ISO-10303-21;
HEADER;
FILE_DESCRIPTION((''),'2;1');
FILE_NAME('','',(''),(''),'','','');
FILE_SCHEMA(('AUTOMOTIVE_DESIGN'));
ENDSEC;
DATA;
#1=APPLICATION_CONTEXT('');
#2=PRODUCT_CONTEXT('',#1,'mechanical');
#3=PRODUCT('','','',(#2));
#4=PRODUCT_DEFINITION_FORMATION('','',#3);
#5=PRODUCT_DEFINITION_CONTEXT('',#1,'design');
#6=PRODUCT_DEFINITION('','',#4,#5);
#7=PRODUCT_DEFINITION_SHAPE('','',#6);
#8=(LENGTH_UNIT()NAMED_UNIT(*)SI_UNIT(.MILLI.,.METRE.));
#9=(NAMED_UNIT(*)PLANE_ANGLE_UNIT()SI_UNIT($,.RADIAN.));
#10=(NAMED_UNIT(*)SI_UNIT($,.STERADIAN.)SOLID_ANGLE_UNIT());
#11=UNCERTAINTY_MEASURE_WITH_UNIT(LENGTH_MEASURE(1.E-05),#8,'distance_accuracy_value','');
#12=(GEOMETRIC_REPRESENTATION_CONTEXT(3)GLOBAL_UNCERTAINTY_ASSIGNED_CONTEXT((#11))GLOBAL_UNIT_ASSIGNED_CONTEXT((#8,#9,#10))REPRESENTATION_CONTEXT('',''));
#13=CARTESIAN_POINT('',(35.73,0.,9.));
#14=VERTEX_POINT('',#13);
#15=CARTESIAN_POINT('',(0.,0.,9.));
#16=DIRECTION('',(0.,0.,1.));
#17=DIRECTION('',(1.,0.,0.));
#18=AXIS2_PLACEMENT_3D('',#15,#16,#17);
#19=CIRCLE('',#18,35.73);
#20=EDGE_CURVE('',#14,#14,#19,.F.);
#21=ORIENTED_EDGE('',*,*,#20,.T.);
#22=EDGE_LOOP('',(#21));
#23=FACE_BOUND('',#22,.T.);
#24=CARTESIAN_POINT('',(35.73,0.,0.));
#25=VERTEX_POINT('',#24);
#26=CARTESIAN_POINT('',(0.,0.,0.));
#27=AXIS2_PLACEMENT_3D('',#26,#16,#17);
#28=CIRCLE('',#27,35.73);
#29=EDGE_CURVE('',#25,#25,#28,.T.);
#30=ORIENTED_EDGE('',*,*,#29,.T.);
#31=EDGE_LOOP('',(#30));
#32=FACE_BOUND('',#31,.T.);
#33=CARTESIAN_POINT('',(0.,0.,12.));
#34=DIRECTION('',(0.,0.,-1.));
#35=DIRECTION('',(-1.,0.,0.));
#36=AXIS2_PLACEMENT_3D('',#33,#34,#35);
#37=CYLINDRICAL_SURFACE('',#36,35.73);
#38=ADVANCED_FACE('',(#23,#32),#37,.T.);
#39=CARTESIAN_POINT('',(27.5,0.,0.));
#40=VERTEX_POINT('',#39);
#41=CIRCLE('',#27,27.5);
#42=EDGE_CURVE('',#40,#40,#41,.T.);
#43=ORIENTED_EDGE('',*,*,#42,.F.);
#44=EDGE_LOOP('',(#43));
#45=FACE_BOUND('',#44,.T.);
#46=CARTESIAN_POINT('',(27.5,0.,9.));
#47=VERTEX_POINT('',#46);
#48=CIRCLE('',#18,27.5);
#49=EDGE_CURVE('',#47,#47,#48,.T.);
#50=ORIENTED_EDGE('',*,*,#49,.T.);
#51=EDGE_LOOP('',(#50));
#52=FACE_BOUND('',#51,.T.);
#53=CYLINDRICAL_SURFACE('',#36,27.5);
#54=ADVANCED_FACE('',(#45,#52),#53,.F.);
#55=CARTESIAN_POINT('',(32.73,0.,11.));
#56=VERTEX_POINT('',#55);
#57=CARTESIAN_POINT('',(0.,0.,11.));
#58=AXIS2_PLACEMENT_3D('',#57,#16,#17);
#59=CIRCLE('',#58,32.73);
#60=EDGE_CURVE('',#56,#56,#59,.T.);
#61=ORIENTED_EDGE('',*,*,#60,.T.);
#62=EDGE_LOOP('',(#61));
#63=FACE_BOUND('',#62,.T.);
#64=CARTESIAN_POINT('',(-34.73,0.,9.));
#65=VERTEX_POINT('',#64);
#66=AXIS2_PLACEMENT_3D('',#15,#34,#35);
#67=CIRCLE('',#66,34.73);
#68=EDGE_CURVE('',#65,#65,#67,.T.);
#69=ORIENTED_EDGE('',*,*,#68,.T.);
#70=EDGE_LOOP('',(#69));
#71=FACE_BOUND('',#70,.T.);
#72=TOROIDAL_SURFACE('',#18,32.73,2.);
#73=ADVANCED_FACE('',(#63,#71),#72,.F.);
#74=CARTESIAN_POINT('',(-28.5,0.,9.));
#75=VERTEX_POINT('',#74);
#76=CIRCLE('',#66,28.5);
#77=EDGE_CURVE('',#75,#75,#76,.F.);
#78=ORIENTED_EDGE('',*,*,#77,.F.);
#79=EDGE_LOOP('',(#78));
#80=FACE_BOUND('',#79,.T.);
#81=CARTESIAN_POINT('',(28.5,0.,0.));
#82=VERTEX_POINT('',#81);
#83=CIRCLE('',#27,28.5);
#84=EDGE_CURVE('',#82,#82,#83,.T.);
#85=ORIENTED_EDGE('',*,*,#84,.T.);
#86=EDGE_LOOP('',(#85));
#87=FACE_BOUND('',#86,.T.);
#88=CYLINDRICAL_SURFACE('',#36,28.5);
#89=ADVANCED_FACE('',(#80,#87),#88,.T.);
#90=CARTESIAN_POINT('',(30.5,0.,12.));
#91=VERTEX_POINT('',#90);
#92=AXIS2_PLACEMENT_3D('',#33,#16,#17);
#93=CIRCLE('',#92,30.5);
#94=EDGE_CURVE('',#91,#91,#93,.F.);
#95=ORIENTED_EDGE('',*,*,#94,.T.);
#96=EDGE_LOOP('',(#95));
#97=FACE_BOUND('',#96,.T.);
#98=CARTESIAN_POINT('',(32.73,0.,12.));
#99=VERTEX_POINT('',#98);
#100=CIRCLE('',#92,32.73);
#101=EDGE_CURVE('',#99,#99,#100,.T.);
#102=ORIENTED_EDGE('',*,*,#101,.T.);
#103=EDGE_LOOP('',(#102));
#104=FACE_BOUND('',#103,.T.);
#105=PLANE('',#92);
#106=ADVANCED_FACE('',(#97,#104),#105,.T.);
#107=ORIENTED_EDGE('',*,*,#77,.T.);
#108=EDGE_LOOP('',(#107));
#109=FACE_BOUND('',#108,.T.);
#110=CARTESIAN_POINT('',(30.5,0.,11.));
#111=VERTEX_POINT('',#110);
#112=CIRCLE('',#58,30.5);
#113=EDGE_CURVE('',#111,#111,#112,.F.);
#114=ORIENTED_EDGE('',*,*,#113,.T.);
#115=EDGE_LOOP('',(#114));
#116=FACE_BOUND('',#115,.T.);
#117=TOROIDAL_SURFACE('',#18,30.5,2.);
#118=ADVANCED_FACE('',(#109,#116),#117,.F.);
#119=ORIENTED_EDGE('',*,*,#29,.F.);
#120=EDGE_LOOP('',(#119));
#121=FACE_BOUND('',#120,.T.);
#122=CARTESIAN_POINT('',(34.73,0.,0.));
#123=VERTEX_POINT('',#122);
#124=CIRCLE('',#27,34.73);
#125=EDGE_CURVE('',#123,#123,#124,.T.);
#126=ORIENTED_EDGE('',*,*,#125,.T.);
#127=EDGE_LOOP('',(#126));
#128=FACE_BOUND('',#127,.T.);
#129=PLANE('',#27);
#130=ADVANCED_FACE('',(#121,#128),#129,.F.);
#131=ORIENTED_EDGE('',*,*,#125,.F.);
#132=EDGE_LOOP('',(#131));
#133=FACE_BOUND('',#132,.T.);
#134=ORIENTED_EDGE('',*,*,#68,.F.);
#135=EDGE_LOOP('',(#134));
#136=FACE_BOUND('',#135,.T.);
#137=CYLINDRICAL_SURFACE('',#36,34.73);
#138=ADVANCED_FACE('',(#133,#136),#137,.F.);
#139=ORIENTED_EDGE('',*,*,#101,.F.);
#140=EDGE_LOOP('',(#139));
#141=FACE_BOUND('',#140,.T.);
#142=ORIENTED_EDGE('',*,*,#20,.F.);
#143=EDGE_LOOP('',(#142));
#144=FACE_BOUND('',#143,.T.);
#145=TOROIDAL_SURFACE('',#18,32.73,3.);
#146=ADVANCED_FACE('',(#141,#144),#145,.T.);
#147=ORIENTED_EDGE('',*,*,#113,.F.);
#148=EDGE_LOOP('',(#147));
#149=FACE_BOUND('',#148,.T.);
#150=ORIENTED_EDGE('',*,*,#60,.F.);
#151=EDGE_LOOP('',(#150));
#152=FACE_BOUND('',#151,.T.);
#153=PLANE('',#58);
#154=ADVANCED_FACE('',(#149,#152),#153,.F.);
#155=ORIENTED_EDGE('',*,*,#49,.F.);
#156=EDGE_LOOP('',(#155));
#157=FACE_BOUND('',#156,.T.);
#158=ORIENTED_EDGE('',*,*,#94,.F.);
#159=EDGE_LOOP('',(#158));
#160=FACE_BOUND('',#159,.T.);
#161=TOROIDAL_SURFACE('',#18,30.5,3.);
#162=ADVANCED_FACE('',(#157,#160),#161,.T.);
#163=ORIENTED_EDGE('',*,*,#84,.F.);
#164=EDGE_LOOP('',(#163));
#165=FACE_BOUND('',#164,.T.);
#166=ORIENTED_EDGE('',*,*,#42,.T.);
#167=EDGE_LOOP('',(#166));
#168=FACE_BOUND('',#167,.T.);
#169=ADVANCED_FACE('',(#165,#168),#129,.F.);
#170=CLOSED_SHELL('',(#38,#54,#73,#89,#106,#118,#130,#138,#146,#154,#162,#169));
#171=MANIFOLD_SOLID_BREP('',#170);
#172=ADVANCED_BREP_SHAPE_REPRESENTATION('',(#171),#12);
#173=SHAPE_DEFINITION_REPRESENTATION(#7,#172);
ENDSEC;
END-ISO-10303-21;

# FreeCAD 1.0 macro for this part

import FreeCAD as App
import Part
import Sketcher
from FreeCAD import Vector


def edges_at(feature, points):
    """Names of the edges that pass closest to the given points."""
    edges = feature.Shape.Edges
    near = lambda p: min(range(len(edges)), key=lambda i: edges[i].distToShape(Part.Vertex(*p))[0])
    return sorted({f"Edge{near(p) + 1}" for p in points})


def faces_at(feature, points):
    """Names of the faces that lie closest to the given points."""
    faces = feature.Shape.Faces
    near = lambda p: min(range(len(faces)), key=lambda i: faces[i].distToShape(Part.Vertex(*p))[0])
    return sorted({f"Face{near(p) + 1}" for p in points})

doc = App.newDocument("Part")
body = doc.addObject("PartDesign::Body", "Body")

sketch1 = doc.addObject("Sketcher::SketchObject", "Sketch")
body.addObject(sketch1)
sketch1.AttachmentSupport = (doc.XY_Plane, [""])
sketch1.MapMode = "FlatFace"
sketch1.addGeometry(Part.Circle(Vector(0, 0, 0), Vector(0, 0, 1), 36), False)
sketch1.addGeometry(Part.Circle(Vector(0, 0, 0), Vector(0, 0, 1), 28), False)
sketch1.addConstraint(Sketcher.Constraint("Coincident", 0, 3, -1, 1))
sketch1.addConstraint(Sketcher.Constraint("Coincident", 1, 3, -1, 1))
sketch1.addConstraint(Sketcher.Constraint("Diameter", 1, 55.0))
sketch1.addConstraint(Sketcher.Constraint("Diameter", 0, 71.46))
pad1 = doc.addObject("PartDesign::Pad", "Pad")
body.addObject(pad1)
pad1.Profile = sketch1
pad1.Length = 12
doc.recompute()

fillet = doc.addObject("PartDesign::Fillet", "Fillet")
body.addObject(fillet)
fillet.Base = (pad1, edges_at(pad1, [(-35.73, 0, 12), (-27.5, 0, 12)]))
fillet.Radius = 3
doc.recompute()

thickness = doc.addObject("PartDesign::Thickness", "Thickness")
body.addObject(thickness)
thickness.Base = (fillet, faces_at(fillet, [(-28.584, 0, 0)]))
thickness.Value = 1
thickness.Reversed = True
thickness.Join = "Intersection"

doc.recompute()
